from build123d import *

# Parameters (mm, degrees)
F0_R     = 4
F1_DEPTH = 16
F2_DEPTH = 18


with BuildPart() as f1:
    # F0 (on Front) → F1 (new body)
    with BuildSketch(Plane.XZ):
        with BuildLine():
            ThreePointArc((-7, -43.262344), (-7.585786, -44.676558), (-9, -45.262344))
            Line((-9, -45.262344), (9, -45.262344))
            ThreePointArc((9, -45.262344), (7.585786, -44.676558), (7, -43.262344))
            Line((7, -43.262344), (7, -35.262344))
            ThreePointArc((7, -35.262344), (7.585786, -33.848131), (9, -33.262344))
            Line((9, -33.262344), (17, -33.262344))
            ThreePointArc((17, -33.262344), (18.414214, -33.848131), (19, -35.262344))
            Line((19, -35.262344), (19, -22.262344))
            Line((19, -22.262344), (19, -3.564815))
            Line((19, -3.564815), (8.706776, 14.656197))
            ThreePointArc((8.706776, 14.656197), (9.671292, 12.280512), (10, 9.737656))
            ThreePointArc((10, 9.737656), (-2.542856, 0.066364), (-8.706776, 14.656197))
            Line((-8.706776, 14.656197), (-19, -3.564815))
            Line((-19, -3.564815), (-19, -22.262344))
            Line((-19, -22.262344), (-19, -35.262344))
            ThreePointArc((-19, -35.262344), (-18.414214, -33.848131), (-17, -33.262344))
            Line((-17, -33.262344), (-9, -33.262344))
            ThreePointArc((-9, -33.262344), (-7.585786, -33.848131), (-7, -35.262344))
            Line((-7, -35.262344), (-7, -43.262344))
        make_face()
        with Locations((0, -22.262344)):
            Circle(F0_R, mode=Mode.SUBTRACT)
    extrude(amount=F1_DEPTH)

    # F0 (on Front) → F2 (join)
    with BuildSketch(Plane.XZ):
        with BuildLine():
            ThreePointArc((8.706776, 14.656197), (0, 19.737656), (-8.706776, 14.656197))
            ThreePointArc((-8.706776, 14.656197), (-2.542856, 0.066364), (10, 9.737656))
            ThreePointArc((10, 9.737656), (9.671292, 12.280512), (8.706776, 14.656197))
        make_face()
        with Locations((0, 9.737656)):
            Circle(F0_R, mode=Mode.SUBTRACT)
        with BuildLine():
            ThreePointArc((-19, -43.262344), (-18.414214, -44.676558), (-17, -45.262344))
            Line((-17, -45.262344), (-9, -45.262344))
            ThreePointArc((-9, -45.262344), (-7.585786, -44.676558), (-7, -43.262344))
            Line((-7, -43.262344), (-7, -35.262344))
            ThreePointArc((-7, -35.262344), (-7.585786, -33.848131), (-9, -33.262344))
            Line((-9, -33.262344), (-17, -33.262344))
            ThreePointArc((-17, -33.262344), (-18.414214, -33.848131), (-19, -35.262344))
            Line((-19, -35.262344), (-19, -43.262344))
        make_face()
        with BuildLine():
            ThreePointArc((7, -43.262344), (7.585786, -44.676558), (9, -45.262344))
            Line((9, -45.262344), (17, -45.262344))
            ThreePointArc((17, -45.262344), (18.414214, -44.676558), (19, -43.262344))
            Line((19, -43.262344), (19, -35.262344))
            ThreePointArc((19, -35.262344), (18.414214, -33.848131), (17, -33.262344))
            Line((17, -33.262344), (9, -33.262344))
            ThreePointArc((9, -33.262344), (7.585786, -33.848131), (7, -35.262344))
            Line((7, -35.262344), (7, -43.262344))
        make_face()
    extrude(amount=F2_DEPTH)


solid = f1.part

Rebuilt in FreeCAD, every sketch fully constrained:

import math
import FreeCAD as App
import Part
import Sketcher

V = App.Vector
Q = App.Units.Quantity

doc = App.newDocument("Part")
params = doc.addObject("Spreadsheet::Sheet", "Params")
for row, (alias, value) in enumerate([
    ("sketch1_diameter", "8 mm"),
    ("sketch1_radius", "1.999999 mm"),
    ("sketch1_radius2", "10 mm"),
    ("sketch1_width", "18 mm"),
    ("sketch1_width2", "8 mm"),
    ("pad1_length", "16 mm"),
    ("sketch2_diameter", "8 mm"),
    ("sketch2_radius", "9.999999 mm"),
    ("sketch2_radius2", "1.999999 mm"),
    ("sketch2_width", "8 mm"),
    ("pad2_length", "18 mm"),
], start=1):
    params.set(f"A{row}", alias)
    params.set(f"B{row}", "=" + value)
    params.setAlias(f"B{row}", alias)

body = doc.addObject("PartDesign::Body", "Body")

# Sketch on XZ plane
sketch1 = body.newObject("Sketcher::SketchObject", "Sketch")
sketch1.AttachmentSupport = (doc.getObject("XZ_Plane"), [""])
sketch1.MapMode = "FlatFace"
sketch1.addGeometry(Part.ArcOfCircle(Part.Circle(V(-9, -43.3, 0), V(0, 0, 1), 2), math.radians(-90), math.radians(0)), False)
sketch1.addGeometry(Part.LineSegment(V(-9, -45.3, 0), V(9, -45.3, 0)), False)
sketch1.addGeometry(Part.ArcOfCircle(Part.Circle(V(9, -43.3, 0), V(0, 0, 1), 2), math.radians(180), math.radians(270)), False)
sketch1.addGeometry(Part.LineSegment(V(7, -43.3, 0), V(7, -35.3, 0)), False)
sketch1.addGeometry(Part.ArcOfCircle(Part.Circle(V(9, -35.3, 0), V(0, 0, 1), 2), math.radians(90), math.radians(180)), False)
sketch1.addGeometry(Part.LineSegment(V(9, -33.3, 0), V(17, -33.3, 0)), False)
sketch1.addGeometry(Part.ArcOfCircle(Part.Circle(V(17, -35.3, 0), V(0, 0, 1), 2), math.radians(0), math.radians(90)), False)
sketch1.addGeometry(Part.LineSegment(V(19, -35.3, 0), V(19, -3.6, 0)), False)
sketch1.addGeometry(Part.LineSegment(V(19, -3.6, 0), V(8.7, 14.7, 0)), False)
sketch1.addGeometry(Part.ArcOfCircle(Part.Circle(V(0, 9.7, 0), V(0, 0, 1), 10), math.radians(0), math.radians(29)), False)
sketch1.addGeometry(Part.ArcOfCircle(Part.Circle(V(0, 9.7, 0), V(0, 0, 1), 10), math.radians(151), math.radians(360)), False)
sketch1.addGeometry(Part.LineSegment(V(-8.7, 14.7, 0), V(-19, -3.6, 0)), False)
sketch1.addGeometry(Part.LineSegment(V(-19, -3.6, 0), V(-19, -35.3, 0)), False)
sketch1.addGeometry(Part.ArcOfCircle(Part.Circle(V(-17, -35.3, 0), V(0, 0, 1), 2), math.radians(90), math.radians(180)), False)
sketch1.addGeometry(Part.LineSegment(V(-17, -33.3, 0), V(-9, -33.3, 0)), False)
sketch1.addGeometry(Part.ArcOfCircle(Part.Circle(V(-9, -35.3, 0), V(0, 0, 1), 2), math.radians(0), math.radians(90)), False)
sketch1.addGeometry(Part.LineSegment(V(-7, -35.3, 0), V(-7, -43.3, 0)), False)
sketch1.addGeometry(Part.Circle(V(0, -22.3, 0), V(0, 0, 1), 4), False)
sketch1.addConstraint(Sketcher.Constraint("Tangent", 0, 1, 1, 1))
sketch1.addConstraint(Sketcher.Constraint("Tangent", 1, 2, 2, 2))
sketch1.addConstraint(Sketcher.Constraint("Tangent", 2, 1, 3, 1))
sketch1.addConstraint(Sketcher.Constraint("Tangent", 3, 2, 4, 2))
sketch1.addConstraint(Sketcher.Constraint("Tangent", 4, 1, 5, 1))
sketch1.addConstraint(Sketcher.Constraint("Tangent", 5, 2, 6, 2))
sketch1.addConstraint(Sketcher.Constraint("Tangent", 6, 1, 7, 1))
sketch1.addConstraint(Sketcher.Constraint("Coincident", 7, 2, 8, 1))
sketch1.addConstraint(Sketcher.Constraint("Tangent", 8, 2, 9, 2))
sketch1.addConstraint(Sketcher.Constraint("Tangent", 9, 1, 10, 2))
sketch1.addConstraint(Sketcher.Constraint("Tangent", 10, 1, 11, 1))
sketch1.addConstraint(Sketcher.Constraint("Coincident", 11, 2, 12, 1))
sketch1.addConstraint(Sketcher.Constraint("Tangent", 12, 2, 13, 2))
sketch1.addConstraint(Sketcher.Constraint("Tangent", 13, 1, 14, 1))
sketch1.addConstraint(Sketcher.Constraint("Tangent", 14, 2, 15, 2))
sketch1.addConstraint(Sketcher.Constraint("Tangent", 15, 1, 16, 1))
sketch1.addConstraint(Sketcher.Constraint("Tangent", 16, 2, 0, 2))
sketch1.addConstraint(Sketcher.Constraint("Horizontal", 1))
sketch1.addConstraint(Sketcher.Constraint("Vertical", 3))
sketch1.addConstraint(Sketcher.Constraint("Horizontal", 5))
sketch1.addConstraint(Sketcher.Constraint("Vertical", 7))
sketch1.addConstraint(Sketcher.Constraint("Vertical", 12))
sketch1.addConstraint(Sketcher.Constraint("Horizontal", 14))
sketch1.addConstraint(Sketcher.Constraint("Vertical", 16))
sketch1.addConstraint(Sketcher.Constraint("Equal", 0, 2))
sketch1.addConstraint(Sketcher.Constraint("Equal", 2, 4))
sketch1.addConstraint(Sketcher.Constraint("Equal", 4, 6))
sketch1.addConstraint(Sketcher.Constraint("Equal", 6, 13))
sketch1.addConstraint(Sketcher.Constraint("Equal", 13, 15))
sketch1.addConstraint(Sketcher.Constraint("Symmetric", 6, 3, 13, 3, -2))
sketch1.addConstraint(Sketcher.Constraint("Symmetric", 8, 2, 10, 1, -2))
sketch1.addConstraint(Sketcher.Constraint("PointOnObject", 10, 3, -2))
sketch1.addConstraint(Sketcher.Constraint("PointOnObject", 17, 3, -2))
sketch1.addConstraint(Sketcher.Constraint("Horizontal", 10, 3, 9, 1))
sketch1.addConstraint(Sketcher.Constraint("Equal", 5, 14))
sketch1.addConstraint(Sketcher.Constraint("Equal", 14, 3))
sketch1.addConstraint(Sketcher.Constraint("Diameter", 17, Q("8 mm")))
sketch1.addConstraint(Sketcher.Constraint("Radius", 0, Q("1.999999 mm")))
sketch1.addConstraint(Sketcher.Constraint("Radius", 10, Q("10 mm")))
sketch1.addConstraint(Sketcher.Constraint("DistanceX", 1, 1, 1, 2, Q("18 mm")))
sketch1.addConstraint(Sketcher.Constraint("DistanceX", 5, 1, 5, 2, Q("8 mm")))
sketch1.addConstraint(Sketcher.Constraint("DistanceY", 4, 3, 10, 3, Q("45 mm")))
sketch1.addConstraint(Sketcher.Constraint("DistanceY", 4, 3, 17, 3, Q("13 mm")))
sketch1.addConstraint(Sketcher.Constraint("DistanceY", 7, 1, 7, 2, Q("31.697529 mm")))
sketch1.addConstraint(Sketcher.Constraint("DistanceY", -1, 1, 9, 3, Q("9.737659 mm")))
sketch1.setExpression("Constraints[36]", "Params.sketch1_diameter")
sketch1.setExpression("Constraints[37]", "Params.sketch1_radius")
sketch1.setExpression("Constraints[38]", "Params.sketch1_radius2")
sketch1.setExpression("Constraints[39]", "Params.sketch1_width")
sketch1.setExpression("Constraints[40]", "Params.sketch1_width2")
pad1 = body.newObject("PartDesign::Pad", "Pad")
pad1.Profile = sketch1
pad1.setExpression("Length", "Params.pad1_length")

# Sketch on XZ plane
sketch2 = body.newObject("Sketcher::SketchObject", "Sketch001")
sketch2.AttachmentSupport = (doc.getObject("XZ_Plane"), [""])
sketch2.MapMode = "FlatFace"
sketch2.addGeometry(Part.ArcOfCircle(Part.Circle(V(0, 9.7, 0), V(0, 0, 1), 10), math.radians(29), math.radians(151)), False)
sketch2.addGeometry(Part.ArcOfCircle(Part.Circle(V(0, 9.7, 0), V(0, 0, 1), 10), math.radians(151), math.radians(360)), False)
sketch2.addGeometry(Part.ArcOfCircle(Part.Circle(V(0, 9.7, 0), V(0, 0, 1), 10), math.radians(0), math.radians(29)), False)
sketch2.addGeometry(Part.Circle(V(0, 9.7, 0), V(0, 0, 1), 4), False)
sketch2.addGeometry(Part.ArcOfCircle(Part.Circle(V(-17, -43.3, 0), V(0, 0, 1), 2), math.radians(180), math.radians(270)), False)
sketch2.addGeometry(Part.LineSegment(V(-17, -45.3, 0), V(-9, -45.3, 0)), False)
sketch2.addGeometry(Part.ArcOfCircle(Part.Circle(V(-9, -43.3, 0), V(0, 0, 1), 2), math.radians(-90), math.radians(0)), False)
sketch2.addGeometry(Part.LineSegment(V(-7, -43.3, 0), V(-7, -35.3, 0)), False)
sketch2.addGeometry(Part.ArcOfCircle(Part.Circle(V(-9, -35.3, 0), V(0, 0, 1), 2), math.radians(0), math.radians(90)), False)
sketch2.addGeometry(Part.LineSegment(V(-9, -33.3, 0), V(-17, -33.3, 0)), False)
sketch2.addGeometry(Part.ArcOfCircle(Part.Circle(V(-17, -35.3, 0), V(0, 0, 1), 2), math.radians(90), math.radians(180)), False)
sketch2.addGeometry(Part.LineSegment(V(-19, -35.3, 0), V(-19, -43.3, 0)), False)
sketch2.addGeometry(Part.ArcOfCircle(Part.Circle(V(9, -43.3, 0), V(0, 0, 1), 2), math.radians(180), math.radians(270)), False)
sketch2.addGeometry(Part.LineSegment(V(9, -45.3, 0), V(17, -45.3, 0)), False)
sketch2.addGeometry(Part.ArcOfCircle(Part.Circle(V(17, -43.3, 0), V(0, 0, 1), 2), math.radians(-90), math.radians(0)), False)
sketch2.addGeometry(Part.LineSegment(V(19, -43.3, 0), V(19, -35.3, 0)), False)
sketch2.addGeometry(Part.ArcOfCircle(Part.Circle(V(17, -35.3, 0), V(0, 0, 1), 2), math.radians(0), math.radians(90)), False)
sketch2.addGeometry(Part.LineSegment(V(17, -33.3, 0), V(9, -33.3, 0)), False)
sketch2.addGeometry(Part.ArcOfCircle(Part.Circle(V(9, -35.3, 0), V(0, 0, 1), 2), math.radians(90), math.radians(180)), False)
sketch2.addGeometry(Part.LineSegment(V(7, -35.3, 0), V(7, -43.3, 0)), False)
sketch2.addConstraint(Sketcher.Constraint("Tangent", 0, 2, 1, 1))
sketch2.addConstraint(Sketcher.Constraint("Tangent", 1, 2, 2, 1))
sketch2.addConstraint(Sketcher.Constraint("Tangent", 2, 2, 0, 1))
sketch2.addConstraint(Sketcher.Constraint("Tangent", 4, 2, 5, 1))
sketch2.addConstraint(Sketcher.Constraint("Tangent", 5, 2, 6, 1))
sketch2.addConstraint(Sketcher.Constraint("Tangent", 6, 2, 7, 1))
sketch2.addConstraint(Sketcher.Constraint("Tangent", 7, 2, 8, 1))
sketch2.addConstraint(Sketcher.Constraint("Tangent", 8, 2, 9, 1))
sketch2.addConstraint(Sketcher.Constraint("Tangent", 9, 2, 10, 1))
sketch2.addConstraint(Sketcher.Constraint("Tangent", 10, 2, 11, 1))
sketch2.addConstraint(Sketcher.Constraint("Tangent", 11, 2, 4, 1))
sketch2.addConstraint(Sketcher.Constraint("Tangent", 12, 2, 13, 1))
sketch2.addConstraint(Sketcher.Constraint("Tangent", 13, 2, 14, 1))
sketch2.addConstraint(Sketcher.Constraint("Tangent", 14, 2, 15, 1))
sketch2.addConstraint(Sketcher.Constraint("Tangent", 15, 2, 16, 1))
sketch2.addConstraint(Sketcher.Constraint("Tangent", 16, 2, 17, 1))
sketch2.addConstraint(Sketcher.Constraint("Tangent", 17, 2, 18, 1))
sketch2.addConstraint(Sketcher.Constraint("Tangent", 18, 2, 19, 1))
sketch2.addConstraint(Sketcher.Constraint("Tangent", 19, 2, 12, 1))
sketch2.addConstraint(Sketcher.Constraint("Horizontal", 5))
sketch2.addConstraint(Sketcher.Constraint("Vertical", 7))
sketch2.addConstraint(Sketcher.Constraint("Horizontal", 9))
sketch2.addConstraint(Sketcher.Constraint("Vertical", 11))
sketch2.addConstraint(Sketcher.Constraint("Horizontal", 13))
sketch2.addConstraint(Sketcher.Constraint("Vertical", 15))
sketch2.addConstraint(Sketcher.Constraint("Horizontal", 17))
sketch2.addConstraint(Sketcher.Constraint("Vertical", 19))
sketch2.addConstraint(Sketcher.Constraint("Coincident", 3, 3, 0, 3))
sketch2.addConstraint(Sketcher.Constraint("Equal", 4, 6))
sketch2.addConstraint(Sketcher.Constraint("Equal", 6, 8))
sketch2.addConstraint(Sketcher.Constraint("Equal", 8, 10))
sketch2.addConstraint(Sketcher.Constraint("Equal", 10, 12))
sketch2.addConstraint(Sketcher.Constraint("Equal", 12, 14))
sketch2.addConstraint(Sketcher.Constraint("Equal", 14, 16))
sketch2.addConstraint(Sketcher.Constraint("Equal", 16, 18))
sketch2.addConstraint(Sketcher.Constraint("Symmetric", 6, 3, 12, 3, -2))
sketch2.addConstraint(Sketcher.Constraint("Symmetric", 10, 3, 16, 3, -2))
sketch2.addConstraint(Sketcher.Constraint("Symmetric", 0, 2, 2, 2, -2))
sketch2.addConstraint(Sketcher.Constraint("Horizontal", 3, 3, 1, 2))
sketch2.addConstraint(Sketcher.Constraint("Equal", 17, 7))
sketch2.addConstraint(Sketcher.Constraint("Diameter", 3, Q("8 mm")))
sketch2.addConstraint(Sketcher.Constraint("Radius", 0, Q("9.999999 mm")))
sketch2.addConstraint(Sketcher.Constraint("Radius", 4, Q("1.999999 mm")))
sketch2.addConstraint(Sketcher.Constraint("DistanceX", 5, 1, 5, 2, Q("8 mm")))
sketch2.addConstraint(Sketcher.Constraint("DistanceX", 4, 3, -1, 1, Q("17.000001 mm")))
sketch2.addConstraint(Sketcher.Constraint("DistanceY", 4, 3, 1, 3, Q("53.000001 mm")))
sketch2.addConstraint(Sketcher.Constraint("DistanceY", -1, 1, 2, 3, Q("9.737659 mm")))
sketch2.addConstraint(Sketcher.Constraint("DistanceY", 0, 3, 0, 2, Q("4.91854 mm")))
sketch2.setExpression("Constraints[40]", "Params.sketch2_diameter")
sketch2.setExpression("Constraints[41]", "Params.sketch2_radius")
sketch2.setExpression("Constraints[42]", "Params.sketch2_radius2")
sketch2.setExpression("Constraints[43]", "Params.sketch2_width")
pad2 = body.newObject("PartDesign::Pad", "Pad001")
pad2.Profile = sketch2
pad2.setExpression("Length", "Params.pad2_length")

doc.recompute()
